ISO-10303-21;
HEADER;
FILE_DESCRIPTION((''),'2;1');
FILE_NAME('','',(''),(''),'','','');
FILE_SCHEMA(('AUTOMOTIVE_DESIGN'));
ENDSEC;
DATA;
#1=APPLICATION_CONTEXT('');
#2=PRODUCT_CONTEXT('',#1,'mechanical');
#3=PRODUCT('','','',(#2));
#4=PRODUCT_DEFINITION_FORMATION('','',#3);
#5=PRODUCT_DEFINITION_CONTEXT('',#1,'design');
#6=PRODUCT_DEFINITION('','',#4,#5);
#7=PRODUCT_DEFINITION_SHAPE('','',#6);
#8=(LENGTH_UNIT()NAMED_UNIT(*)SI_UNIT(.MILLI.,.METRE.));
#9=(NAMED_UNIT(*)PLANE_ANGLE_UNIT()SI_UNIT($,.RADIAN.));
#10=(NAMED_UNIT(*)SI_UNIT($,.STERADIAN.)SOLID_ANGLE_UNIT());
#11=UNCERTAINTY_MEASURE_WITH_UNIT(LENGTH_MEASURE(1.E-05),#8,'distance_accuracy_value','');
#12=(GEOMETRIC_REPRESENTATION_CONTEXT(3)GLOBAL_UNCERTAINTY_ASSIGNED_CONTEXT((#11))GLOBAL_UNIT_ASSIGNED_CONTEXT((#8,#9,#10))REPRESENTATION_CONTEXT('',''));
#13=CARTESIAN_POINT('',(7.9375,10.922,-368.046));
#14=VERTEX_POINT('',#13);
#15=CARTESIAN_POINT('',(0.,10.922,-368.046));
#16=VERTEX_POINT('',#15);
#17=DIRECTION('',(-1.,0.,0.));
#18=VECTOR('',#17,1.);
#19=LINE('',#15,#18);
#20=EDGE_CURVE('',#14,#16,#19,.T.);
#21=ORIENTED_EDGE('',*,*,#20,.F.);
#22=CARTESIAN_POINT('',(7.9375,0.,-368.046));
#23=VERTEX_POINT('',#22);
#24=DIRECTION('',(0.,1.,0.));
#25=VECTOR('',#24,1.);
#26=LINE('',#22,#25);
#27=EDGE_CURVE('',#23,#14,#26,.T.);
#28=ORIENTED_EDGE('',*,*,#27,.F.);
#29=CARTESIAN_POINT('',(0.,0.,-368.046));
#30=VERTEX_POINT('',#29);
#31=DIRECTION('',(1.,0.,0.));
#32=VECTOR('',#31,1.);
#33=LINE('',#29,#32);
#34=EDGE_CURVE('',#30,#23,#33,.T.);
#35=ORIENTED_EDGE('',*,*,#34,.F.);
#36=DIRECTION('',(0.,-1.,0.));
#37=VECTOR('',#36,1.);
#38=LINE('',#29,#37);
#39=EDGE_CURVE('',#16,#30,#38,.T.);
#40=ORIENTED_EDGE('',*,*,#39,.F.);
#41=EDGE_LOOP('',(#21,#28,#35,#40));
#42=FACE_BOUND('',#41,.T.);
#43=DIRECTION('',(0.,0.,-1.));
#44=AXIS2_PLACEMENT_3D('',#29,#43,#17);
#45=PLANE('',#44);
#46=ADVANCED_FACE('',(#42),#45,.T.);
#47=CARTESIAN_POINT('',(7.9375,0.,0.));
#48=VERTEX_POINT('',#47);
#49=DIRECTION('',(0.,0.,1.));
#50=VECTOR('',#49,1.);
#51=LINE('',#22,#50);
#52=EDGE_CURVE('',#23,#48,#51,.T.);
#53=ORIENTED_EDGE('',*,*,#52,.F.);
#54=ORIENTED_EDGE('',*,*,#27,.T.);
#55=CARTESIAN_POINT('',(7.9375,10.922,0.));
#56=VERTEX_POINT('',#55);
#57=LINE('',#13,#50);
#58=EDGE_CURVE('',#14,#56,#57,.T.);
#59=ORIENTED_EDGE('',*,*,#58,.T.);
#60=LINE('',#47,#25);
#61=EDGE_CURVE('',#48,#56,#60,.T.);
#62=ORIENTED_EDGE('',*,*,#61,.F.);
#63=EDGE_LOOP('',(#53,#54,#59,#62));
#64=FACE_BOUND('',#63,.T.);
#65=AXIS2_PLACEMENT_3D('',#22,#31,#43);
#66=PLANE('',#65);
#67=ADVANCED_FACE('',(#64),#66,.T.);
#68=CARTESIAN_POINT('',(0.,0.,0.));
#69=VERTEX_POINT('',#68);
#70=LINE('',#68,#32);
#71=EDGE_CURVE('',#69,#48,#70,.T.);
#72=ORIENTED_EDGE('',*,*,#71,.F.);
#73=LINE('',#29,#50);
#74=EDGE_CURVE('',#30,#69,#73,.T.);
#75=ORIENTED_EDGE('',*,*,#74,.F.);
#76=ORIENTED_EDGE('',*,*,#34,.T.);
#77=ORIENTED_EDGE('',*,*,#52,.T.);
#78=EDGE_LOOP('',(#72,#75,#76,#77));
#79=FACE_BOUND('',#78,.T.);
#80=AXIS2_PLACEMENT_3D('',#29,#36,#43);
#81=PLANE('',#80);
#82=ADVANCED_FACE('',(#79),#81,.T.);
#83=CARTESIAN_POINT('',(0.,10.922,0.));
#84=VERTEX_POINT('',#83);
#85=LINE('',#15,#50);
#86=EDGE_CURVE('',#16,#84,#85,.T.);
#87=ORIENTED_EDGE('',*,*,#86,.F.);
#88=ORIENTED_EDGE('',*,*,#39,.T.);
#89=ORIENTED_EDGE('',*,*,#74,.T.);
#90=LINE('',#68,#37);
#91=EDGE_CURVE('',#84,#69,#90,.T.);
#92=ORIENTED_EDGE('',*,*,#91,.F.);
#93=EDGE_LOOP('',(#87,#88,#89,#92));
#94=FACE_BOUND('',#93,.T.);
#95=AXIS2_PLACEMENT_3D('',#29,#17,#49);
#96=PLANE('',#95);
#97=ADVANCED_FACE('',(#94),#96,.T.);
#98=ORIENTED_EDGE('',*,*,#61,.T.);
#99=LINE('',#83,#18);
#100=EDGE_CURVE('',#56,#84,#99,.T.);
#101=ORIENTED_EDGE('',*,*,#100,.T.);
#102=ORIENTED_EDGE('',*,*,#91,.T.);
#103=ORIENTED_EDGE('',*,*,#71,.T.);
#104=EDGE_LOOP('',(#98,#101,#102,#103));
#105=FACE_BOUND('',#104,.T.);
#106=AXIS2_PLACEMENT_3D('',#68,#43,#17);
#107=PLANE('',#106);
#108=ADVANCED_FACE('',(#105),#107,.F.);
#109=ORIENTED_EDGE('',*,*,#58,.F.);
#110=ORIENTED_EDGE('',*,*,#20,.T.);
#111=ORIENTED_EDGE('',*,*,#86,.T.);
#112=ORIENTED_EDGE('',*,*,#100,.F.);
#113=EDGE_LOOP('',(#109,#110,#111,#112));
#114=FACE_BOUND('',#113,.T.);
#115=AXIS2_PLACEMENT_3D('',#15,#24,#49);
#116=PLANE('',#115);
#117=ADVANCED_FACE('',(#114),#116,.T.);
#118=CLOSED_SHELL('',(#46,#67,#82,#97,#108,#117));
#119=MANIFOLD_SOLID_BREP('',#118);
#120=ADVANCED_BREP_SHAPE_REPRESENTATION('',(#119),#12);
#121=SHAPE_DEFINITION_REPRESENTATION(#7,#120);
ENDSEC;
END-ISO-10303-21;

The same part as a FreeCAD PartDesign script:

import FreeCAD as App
import Part
import Sketcher
Q = App.Units.Quantity


def add_polygon(sketch, points):
    """Adds a closed chain of lines whose ends are joined by coincident constraints."""
    first, n = sketch.GeometryCount, len(points)
    for a, b in zip(points, points[1:] + points[:1]):
        sketch.addGeometry(Part.LineSegment(App.Vector(*a, 0), App.Vector(*b, 0)), False)
    for i in range(n):
        sketch.addConstraint(Sketcher.Constraint("Coincident", first + i, 2, first + (i + 1) % n, 1))

doc = App.newDocument("Part")
body = doc.addObject("PartDesign::Body", "Body")

sketch1 = doc.addObject("Sketcher::SketchObject", "Sketch")
body.addObject(sketch1)
sketch1.AttachmentSupport = (doc.XY_Plane, [""])
sketch1.MapMode = "FlatFace"
add_polygon(sketch1, [(0, 10.922), (0, 0), (7.9375, 0), (7.9375, 10.922)])
sketch1.addConstraint(Sketcher.Constraint("Vertical", 0))
sketch1.addConstraint(Sketcher.Constraint("Horizontal", 1))
sketch1.addConstraint(Sketcher.Constraint("Vertical", 2))
sketch1.addConstraint(Sketcher.Constraint("Horizontal", 3))
sketch1.addConstraint(Sketcher.Constraint("Coincident", 0, 2, -1, 1))
sketch1.addConstraint(Sketcher.Constraint("DistanceY", 0, 2, 0, 1, Q("0.43 in")))
sketch1.addConstraint(Sketcher.Constraint("DistanceX", 1, 1, 1, 2, Q("0.3125 in")))
pad1 = doc.addObject("PartDesign::Pad", "Pad")
body.addObject(pad1)
pad1.Profile = sketch1
pad1.Length = Q("14.49 in")
pad1.Reversed = True

doc.recompute()
